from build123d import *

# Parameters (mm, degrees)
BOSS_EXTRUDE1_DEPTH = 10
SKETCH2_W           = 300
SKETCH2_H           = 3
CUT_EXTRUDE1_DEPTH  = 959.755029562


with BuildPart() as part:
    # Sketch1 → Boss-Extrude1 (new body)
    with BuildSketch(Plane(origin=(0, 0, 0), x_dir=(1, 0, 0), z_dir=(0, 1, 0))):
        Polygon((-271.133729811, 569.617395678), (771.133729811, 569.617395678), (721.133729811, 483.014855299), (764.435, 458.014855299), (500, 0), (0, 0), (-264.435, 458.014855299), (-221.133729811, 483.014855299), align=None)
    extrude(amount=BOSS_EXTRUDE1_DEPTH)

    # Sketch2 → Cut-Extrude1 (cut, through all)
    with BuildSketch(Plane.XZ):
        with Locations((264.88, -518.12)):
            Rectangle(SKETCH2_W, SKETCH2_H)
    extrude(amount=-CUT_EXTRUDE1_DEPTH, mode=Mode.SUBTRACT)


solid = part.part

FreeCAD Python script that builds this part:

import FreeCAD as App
import Part
import Sketcher
Q = App.Units.Quantity

doc = App.newDocument("Part")
body = doc.addObject("PartDesign::Body", "Body")

# Sketch on XZ plane
sketch1 = doc.addObject("Sketcher::SketchObject", "Sketch")
body.addObject(sketch1)
sketch1.AttachmentSupport = (doc.XZ_Plane, [""])
sketch1.MapMode = "FlatFace"
sketch1.addGeometry(Part.LineSegment(App.Vector(771, -570, 0), App.Vector(-271, -570, 0)), False)
sketch1.addGeometry(Part.LineSegment(App.Vector(-271, -570, 0), App.Vector(-221, -483, 0)), False)
sketch1.addGeometry(Part.LineSegment(App.Vector(-221, -483, 0), App.Vector(-264, -458, 0)), False)
sketch1.addGeometry(Part.LineSegment(App.Vector(-264, -458, 0), App.Vector(0, 0, 0)), False)
sketch1.addGeometry(Part.LineSegment(App.Vector(0, 0, 0), App.Vector(500, 0, 0)), False)
sketch1.addGeometry(Part.LineSegment(App.Vector(500, 0, 0), App.Vector(764, -458, 0)), False)
sketch1.addGeometry(Part.LineSegment(App.Vector(764, -458, 0), App.Vector(721, -483, 0)), False)
sketch1.addGeometry(Part.LineSegment(App.Vector(721, -483, 0), App.Vector(771, -570, 0)), False)
sketch1.addConstraint(Sketcher.Constraint("Coincident", 0, 2, 1, 1))
sketch1.addConstraint(Sketcher.Constraint("Coincident", 1, 2, 2, 1))
sketch1.addConstraint(Sketcher.Constraint("Coincident", 2, 2, 3, 1))
sketch1.addConstraint(Sketcher.Constraint("Coincident", 3, 2, 4, 1))
sketch1.addConstraint(Sketcher.Constraint("Coincident", 4, 2, 5, 1))
sketch1.addConstraint(Sketcher.Constraint("Coincident", 5, 2, 6, 1))
sketch1.addConstraint(Sketcher.Constraint("Coincident", 6, 2, 7, 1))
sketch1.addConstraint(Sketcher.Constraint("Coincident", 7, 2, 0, 1))
sketch1.addConstraint(Sketcher.Constraint("Horizontal", 0))
sketch1.addConstraint(Sketcher.Constraint("Horizontal", 4))
sketch1.addConstraint(Sketcher.Constraint("Coincident", 3, 2, -1, 1))
sketch1.addConstraint(Sketcher.Constraint("Perpendicular", 1, 2))
sketch1.addConstraint(Sketcher.Constraint("Perpendicular", 2, 3))
sketch1.addConstraint(Sketcher.Constraint("Perpendicular", 5, 6))
sketch1.addConstraint(Sketcher.Constraint("Perpendicular", 6, 7))
sketch1.addConstraint(Sketcher.Constraint("Horizontal", 2, 2, 5, 2))
sketch1.addConstraint(Sketcher.Constraint("Horizontal", 1, 2, 6, 2))
sketch1.addConstraint(Sketcher.Constraint("Equal", 3, 5))
sketch1.addConstraint(Sketcher.Constraint("DistanceX", 4, 1, 4, 2, 500.0))
sketch1.addConstraint(Sketcher.Constraint("Angle", 1, Q("60 deg")))
sketch1.addConstraint(Sketcher.Constraint("Distance", 1, 100.0))
sketch1.addConstraint(Sketcher.Constraint("Distance", 2, 50.0))
sketch1.addConstraint(Sketcher.Constraint("Distance", 3, 528.87))
pad1 = doc.addObject("PartDesign::Pad", "Pad")
body.addObject(pad1)
pad1.Profile = sketch1
pad1.Length = 10
pad1.Reversed = True

# Sketch on XZ plane
sketch2 = doc.addObject("Sketcher::SketchObject", "Sketch001")
body.addObject(sketch2)
sketch2.AttachmentSupport = (doc.XZ_Plane, [""])
sketch2.MapMode = "FlatFace"
sketch2.addGeometry(Part.LineSegment(App.Vector(114.9, -516.6, 0), App.Vector(114.9, -519.6, 0)), False)
sketch2.addGeometry(Part.LineSegment(App.Vector(114.9, -519.6, 0), App.Vector(414.9, -519.6, 0)), False)
sketch2.addGeometry(Part.LineSegment(App.Vector(414.9, -519.6, 0), App.Vector(414.9, -516.6, 0)), False)
sketch2.addGeometry(Part.LineSegment(App.Vector(414.9, -516.6, 0), App.Vector(114.9, -516.6, 0)), False)
sketch2.addConstraint(Sketcher.Constraint("Coincident", 0, 2, 1, 1))
sketch2.addConstraint(Sketcher.Constraint("Coincident", 1, 2, 2, 1))
sketch2.addConstraint(Sketcher.Constraint("Coincident", 2, 2, 3, 1))
sketch2.addConstraint(Sketcher.Constraint("Coincident", 3, 2, 0, 1))
sketch2.addConstraint(Sketcher.Constraint("Vertical", 0))
sketch2.addConstraint(Sketcher.Constraint("Horizontal", 1))
sketch2.addConstraint(Sketcher.Constraint("Vertical", 2))
sketch2.addConstraint(Sketcher.Constraint("Horizontal", 3))
sketch2.addConstraint(Sketcher.Constraint("DistanceX", 1, 1, 1, 2, 300.0))
sketch2.addConstraint(Sketcher.Constraint("DistanceY", 0, 2, 0, 1, 3.0))
sketch2.addConstraint(Sketcher.Constraint("DistanceX", -1, 1, 0, 2, 114.88))
sketch2.addConstraint(Sketcher.Constraint("DistanceY", 0, 2, -1, 1, 519.62))
pocket1 = doc.addObject("PartDesign::Pocket", "Pocket")
body.addObject(pocket1)
pocket1.Profile = sketch2
pocket1.Type = "ThroughAll"

doc.recompute()
